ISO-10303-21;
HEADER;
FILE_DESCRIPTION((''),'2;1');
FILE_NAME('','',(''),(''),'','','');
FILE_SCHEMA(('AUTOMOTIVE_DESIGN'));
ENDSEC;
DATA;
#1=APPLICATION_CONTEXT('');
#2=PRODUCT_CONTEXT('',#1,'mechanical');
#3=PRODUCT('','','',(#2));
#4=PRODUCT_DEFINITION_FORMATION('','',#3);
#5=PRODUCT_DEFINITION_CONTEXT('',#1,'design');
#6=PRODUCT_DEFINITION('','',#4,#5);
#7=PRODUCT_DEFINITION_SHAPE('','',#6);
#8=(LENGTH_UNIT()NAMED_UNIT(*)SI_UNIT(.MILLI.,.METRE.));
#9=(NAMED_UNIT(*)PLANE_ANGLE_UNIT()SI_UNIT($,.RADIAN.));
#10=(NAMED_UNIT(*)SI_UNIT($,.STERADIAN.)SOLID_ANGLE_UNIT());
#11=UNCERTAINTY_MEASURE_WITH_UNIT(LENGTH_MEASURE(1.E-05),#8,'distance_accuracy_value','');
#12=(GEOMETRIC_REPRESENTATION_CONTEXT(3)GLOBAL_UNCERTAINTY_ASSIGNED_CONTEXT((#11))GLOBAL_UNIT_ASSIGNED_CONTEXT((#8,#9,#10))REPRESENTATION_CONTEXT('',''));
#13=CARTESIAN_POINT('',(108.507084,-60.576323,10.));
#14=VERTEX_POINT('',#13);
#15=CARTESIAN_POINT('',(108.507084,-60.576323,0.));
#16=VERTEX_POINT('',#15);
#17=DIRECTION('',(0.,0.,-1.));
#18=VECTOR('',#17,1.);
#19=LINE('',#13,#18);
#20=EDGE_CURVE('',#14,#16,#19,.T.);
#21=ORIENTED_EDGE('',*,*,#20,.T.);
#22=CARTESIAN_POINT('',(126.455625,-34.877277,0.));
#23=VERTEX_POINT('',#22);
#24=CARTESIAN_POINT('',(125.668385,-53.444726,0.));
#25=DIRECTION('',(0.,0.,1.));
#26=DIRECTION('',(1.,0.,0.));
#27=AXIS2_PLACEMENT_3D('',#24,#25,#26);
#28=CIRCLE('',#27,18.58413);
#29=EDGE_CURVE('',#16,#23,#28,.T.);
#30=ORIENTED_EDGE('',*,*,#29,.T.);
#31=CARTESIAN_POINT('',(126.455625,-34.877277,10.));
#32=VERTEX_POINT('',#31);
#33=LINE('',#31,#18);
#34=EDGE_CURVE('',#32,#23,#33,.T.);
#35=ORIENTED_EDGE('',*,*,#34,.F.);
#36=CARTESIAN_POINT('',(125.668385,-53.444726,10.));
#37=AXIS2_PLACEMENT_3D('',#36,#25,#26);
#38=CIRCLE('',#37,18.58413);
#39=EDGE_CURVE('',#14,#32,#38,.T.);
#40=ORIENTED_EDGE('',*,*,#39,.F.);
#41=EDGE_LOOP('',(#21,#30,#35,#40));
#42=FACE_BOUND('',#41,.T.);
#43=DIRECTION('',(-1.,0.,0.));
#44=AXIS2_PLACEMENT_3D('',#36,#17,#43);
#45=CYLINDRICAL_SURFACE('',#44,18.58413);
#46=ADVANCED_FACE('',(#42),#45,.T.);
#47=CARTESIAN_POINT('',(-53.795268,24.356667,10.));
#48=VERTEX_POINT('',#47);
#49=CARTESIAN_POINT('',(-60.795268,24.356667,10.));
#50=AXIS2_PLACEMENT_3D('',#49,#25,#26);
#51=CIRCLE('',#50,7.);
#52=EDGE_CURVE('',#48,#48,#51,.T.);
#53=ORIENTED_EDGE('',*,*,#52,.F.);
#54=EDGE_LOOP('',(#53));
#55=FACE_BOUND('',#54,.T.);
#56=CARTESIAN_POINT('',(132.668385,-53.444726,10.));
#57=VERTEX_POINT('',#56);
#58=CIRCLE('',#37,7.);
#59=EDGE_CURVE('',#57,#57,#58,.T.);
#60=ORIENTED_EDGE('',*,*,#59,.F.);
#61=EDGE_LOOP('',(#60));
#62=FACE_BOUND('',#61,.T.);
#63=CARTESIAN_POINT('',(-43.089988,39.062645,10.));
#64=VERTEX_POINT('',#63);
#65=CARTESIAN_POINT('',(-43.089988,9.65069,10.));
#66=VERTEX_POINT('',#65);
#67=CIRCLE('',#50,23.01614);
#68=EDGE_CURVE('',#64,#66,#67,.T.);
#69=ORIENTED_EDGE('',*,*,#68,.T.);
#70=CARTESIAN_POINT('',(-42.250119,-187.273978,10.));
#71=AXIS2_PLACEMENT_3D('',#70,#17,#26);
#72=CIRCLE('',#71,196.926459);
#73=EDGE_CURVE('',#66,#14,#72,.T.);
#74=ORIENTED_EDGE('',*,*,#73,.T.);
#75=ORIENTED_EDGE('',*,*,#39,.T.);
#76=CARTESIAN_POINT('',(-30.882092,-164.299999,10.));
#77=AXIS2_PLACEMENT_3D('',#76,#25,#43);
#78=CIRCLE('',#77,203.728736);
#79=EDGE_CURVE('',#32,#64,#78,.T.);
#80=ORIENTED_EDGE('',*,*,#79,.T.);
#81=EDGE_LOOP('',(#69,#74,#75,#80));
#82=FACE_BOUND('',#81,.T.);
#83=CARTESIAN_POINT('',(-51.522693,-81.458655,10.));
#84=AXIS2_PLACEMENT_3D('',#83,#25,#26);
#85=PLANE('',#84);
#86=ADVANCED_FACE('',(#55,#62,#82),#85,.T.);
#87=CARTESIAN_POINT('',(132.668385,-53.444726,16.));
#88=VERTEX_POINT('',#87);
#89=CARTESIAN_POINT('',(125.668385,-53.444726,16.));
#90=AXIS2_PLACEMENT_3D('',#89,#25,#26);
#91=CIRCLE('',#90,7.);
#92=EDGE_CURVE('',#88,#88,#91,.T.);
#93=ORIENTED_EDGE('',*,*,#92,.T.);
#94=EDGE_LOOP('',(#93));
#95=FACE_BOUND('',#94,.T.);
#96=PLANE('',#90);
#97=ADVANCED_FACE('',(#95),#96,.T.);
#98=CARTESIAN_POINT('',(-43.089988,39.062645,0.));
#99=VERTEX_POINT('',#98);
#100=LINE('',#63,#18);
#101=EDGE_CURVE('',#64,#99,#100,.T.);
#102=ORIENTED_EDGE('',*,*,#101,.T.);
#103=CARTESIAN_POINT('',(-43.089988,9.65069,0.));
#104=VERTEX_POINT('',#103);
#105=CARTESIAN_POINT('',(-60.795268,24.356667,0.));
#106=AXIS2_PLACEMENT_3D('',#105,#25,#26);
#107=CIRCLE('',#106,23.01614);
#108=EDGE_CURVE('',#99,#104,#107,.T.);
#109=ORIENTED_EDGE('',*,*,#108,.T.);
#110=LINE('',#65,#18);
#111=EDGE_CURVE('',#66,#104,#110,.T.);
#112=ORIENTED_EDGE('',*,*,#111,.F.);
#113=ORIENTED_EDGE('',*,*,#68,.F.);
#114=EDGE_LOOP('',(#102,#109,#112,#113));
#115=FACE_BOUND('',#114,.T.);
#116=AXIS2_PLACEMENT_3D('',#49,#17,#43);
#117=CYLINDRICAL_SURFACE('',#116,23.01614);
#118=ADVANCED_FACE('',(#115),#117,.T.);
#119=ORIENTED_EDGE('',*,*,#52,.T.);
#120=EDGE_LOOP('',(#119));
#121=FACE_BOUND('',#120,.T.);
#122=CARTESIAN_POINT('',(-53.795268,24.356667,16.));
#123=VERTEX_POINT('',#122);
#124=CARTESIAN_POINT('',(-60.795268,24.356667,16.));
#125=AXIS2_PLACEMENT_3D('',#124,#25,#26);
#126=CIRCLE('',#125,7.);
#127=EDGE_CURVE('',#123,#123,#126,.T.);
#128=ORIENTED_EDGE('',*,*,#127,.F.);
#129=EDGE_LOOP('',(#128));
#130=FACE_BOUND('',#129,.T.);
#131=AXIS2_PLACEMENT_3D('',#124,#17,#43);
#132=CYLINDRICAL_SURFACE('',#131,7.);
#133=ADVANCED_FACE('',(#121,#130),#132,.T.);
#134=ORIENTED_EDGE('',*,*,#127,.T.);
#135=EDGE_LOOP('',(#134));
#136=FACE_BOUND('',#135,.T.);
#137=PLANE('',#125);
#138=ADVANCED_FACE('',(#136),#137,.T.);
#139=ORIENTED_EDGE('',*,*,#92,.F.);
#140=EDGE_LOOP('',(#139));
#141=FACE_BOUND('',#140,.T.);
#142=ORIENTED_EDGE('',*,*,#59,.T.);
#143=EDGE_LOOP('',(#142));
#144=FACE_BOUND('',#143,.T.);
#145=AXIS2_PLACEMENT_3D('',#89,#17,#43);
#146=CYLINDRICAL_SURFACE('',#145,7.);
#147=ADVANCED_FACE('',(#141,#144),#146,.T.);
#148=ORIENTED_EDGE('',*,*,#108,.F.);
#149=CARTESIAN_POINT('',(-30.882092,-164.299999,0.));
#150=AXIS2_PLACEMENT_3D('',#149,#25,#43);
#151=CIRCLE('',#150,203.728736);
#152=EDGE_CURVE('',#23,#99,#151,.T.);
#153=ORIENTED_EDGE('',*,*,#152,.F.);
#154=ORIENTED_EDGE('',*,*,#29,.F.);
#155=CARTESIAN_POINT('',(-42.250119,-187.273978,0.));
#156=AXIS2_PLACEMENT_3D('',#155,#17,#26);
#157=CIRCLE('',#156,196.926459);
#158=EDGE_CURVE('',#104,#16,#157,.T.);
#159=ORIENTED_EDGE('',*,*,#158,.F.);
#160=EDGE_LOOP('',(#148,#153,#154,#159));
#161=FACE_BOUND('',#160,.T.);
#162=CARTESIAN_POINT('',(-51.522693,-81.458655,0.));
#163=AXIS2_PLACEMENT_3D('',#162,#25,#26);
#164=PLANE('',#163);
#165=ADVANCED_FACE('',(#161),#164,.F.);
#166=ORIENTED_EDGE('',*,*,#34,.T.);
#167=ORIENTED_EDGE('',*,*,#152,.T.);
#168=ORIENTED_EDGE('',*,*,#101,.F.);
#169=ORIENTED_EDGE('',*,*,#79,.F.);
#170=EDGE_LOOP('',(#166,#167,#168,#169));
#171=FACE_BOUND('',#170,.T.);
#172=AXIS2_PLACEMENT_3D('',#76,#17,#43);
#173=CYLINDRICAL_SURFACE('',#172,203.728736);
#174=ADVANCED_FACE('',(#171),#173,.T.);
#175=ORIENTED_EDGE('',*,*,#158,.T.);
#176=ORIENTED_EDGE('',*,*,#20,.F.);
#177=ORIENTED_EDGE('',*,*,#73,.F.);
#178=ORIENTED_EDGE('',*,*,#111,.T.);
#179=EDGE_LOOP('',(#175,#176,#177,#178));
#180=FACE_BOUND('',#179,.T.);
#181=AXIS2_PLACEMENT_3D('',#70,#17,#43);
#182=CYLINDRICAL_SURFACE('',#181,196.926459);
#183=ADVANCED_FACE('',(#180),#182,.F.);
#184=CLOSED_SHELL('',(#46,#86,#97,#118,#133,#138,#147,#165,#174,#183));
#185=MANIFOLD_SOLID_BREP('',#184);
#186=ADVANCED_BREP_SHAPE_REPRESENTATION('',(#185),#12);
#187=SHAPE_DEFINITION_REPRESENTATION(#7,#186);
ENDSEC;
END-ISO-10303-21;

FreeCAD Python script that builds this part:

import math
import FreeCAD as App
import Part
import Sketcher

V = App.Vector

doc = App.newDocument("Part")
params = doc.addObject("Spreadsheet::Sheet", "Params")
for row, (alias, value) in enumerate([
    ("pad1_length", "10 mm"),
    ("sketch2_diameter", "14 mm"),
    ("pad2_length", "6 mm"),
], start=1):
    params.set(f"A{row}", alias)
    params.set(f"B{row}", "=" + value)
    params.setAlias(f"B{row}", alias)

body = doc.addObject("PartDesign::Body", "Body")

# Sketch on XY plane
sketch1 = doc.addObject("Sketcher::SketchObject", "Sketch")
body.addObject(sketch1)
sketch1.AttachmentSupport = (doc.XY_Plane, [""])
sketch1.MapMode = "FlatFace"
sketch1.addGeometry(Part.ArcOfCircle(Part.Circle(V(-31, -164, 0), V(0, 0, 1), 204), math.radians(39), math.radians(93)), False)
sketch1.addGeometry(Part.ArcOfCircle(Part.Circle(V(-61, 24, 0), V(0, 0, 1), 23), math.radians(40), math.radians(320)), False)
sketch1.addGeometry(Part.ArcOfCircle(Part.Circle(V(-42, -187, 0), V(0, 0, 1), 197), math.radians(40), math.radians(90)), False)
sketch1.addGeometry(Part.ArcOfCircle(Part.Circle(V(126, -53, 0), V(0, 0, 1), 19), math.radians(-157), math.radians(88)), False)
sketch1.addConstraint(Sketcher.Constraint("Coincident", 0, 2, 1, 1))
sketch1.addConstraint(Sketcher.Constraint("Coincident", 1, 2, 2, 2))
sketch1.addConstraint(Sketcher.Constraint("Coincident", 2, 1, 3, 1))
sketch1.addConstraint(Sketcher.Constraint("Coincident", 3, 2, 0, 1))
sketch1.addConstraint(Sketcher.Constraint("Vertical", 0, 2, 1, 2))
sketch1.addConstraint(Sketcher.Constraint("DistanceY", 0, 3, -1, 1, 164.299999))
sketch1.addConstraint(Sketcher.Constraint("Radius", 1, 23.01614))
sketch1.addConstraint(Sketcher.Constraint("Radius", 2, 196.926459))
sketch1.addConstraint(Sketcher.Constraint("Radius", 3, 18.58413))
sketch1.addConstraint(Sketcher.Constraint("Radius", 0, 203.728736))
sketch1.addConstraint(Sketcher.Constraint("DistanceX", 2, 1, 3, 3, 17.1613))
sketch1.addConstraint(Sketcher.Constraint("DistanceX", 0, 3, -1, 1, 30.882092))
sketch1.addConstraint(Sketcher.Constraint("DistanceX", 2, 3, -1, 1, 42.250119))
sketch1.addConstraint(Sketcher.Constraint("DistanceY", 2, 3, -1, 1, 187.273978))
sketch1.addConstraint(Sketcher.Constraint("DistanceX", 1, 3, 2, 3, 18.545148))
sketch1.addConstraint(Sketcher.Constraint("DistanceY", 3, 3, 0, 2, 92.507371))
pad1 = doc.addObject("PartDesign::Pad", "Pad")
body.addObject(pad1)
pad1.Profile = sketch1
pad1.setExpression("Length", "Params.pad1_length")

# Sketch on XY plane
sketch2 = doc.addObject("Sketcher::SketchObject", "Sketch001")
body.addObject(sketch2)
sketch2.AttachmentSupport = (doc.XY_Plane, [""])
sketch2.MapMode = "FlatFace"
sketch2.AttachmentOffset = App.Placement(V(0, 0, 10), App.Rotation())
sketch2.addGeometry(Part.Circle(V(126, -53, 0), V(0, 0, 1), 7), False)
sketch2.addGeometry(Part.Circle(V(-61, 24, 0), V(0, 0, 1), 7), False)
sketch2.addConstraint(Sketcher.Constraint("Equal", 0, 1))
sketch2.addConstraint(Sketcher.Constraint("Diameter", 0, 14.0))
sketch2.addConstraint(Sketcher.Constraint("DistanceX", -1, 1, 0, 3, 125.668385))
sketch2.addConstraint(Sketcher.Constraint("DistanceY", 0, 3, -1, 1, 53.444726))
sketch2.addConstraint(Sketcher.Constraint("DistanceX", 1, 3, -1, 1, 60.795268))
sketch2.addConstraint(Sketcher.Constraint("DistanceY", -1, 1, 1, 3, 24.356667))
sketch2.setExpression("Constraints[1]", "Params.sketch2_diameter")
pad2 = doc.addObject("PartDesign::Pad", "Pad001")
body.addObject(pad2)
pad2.Profile = sketch2
pad2.setExpression("Length", "Params.pad2_length")

doc.recompute()
